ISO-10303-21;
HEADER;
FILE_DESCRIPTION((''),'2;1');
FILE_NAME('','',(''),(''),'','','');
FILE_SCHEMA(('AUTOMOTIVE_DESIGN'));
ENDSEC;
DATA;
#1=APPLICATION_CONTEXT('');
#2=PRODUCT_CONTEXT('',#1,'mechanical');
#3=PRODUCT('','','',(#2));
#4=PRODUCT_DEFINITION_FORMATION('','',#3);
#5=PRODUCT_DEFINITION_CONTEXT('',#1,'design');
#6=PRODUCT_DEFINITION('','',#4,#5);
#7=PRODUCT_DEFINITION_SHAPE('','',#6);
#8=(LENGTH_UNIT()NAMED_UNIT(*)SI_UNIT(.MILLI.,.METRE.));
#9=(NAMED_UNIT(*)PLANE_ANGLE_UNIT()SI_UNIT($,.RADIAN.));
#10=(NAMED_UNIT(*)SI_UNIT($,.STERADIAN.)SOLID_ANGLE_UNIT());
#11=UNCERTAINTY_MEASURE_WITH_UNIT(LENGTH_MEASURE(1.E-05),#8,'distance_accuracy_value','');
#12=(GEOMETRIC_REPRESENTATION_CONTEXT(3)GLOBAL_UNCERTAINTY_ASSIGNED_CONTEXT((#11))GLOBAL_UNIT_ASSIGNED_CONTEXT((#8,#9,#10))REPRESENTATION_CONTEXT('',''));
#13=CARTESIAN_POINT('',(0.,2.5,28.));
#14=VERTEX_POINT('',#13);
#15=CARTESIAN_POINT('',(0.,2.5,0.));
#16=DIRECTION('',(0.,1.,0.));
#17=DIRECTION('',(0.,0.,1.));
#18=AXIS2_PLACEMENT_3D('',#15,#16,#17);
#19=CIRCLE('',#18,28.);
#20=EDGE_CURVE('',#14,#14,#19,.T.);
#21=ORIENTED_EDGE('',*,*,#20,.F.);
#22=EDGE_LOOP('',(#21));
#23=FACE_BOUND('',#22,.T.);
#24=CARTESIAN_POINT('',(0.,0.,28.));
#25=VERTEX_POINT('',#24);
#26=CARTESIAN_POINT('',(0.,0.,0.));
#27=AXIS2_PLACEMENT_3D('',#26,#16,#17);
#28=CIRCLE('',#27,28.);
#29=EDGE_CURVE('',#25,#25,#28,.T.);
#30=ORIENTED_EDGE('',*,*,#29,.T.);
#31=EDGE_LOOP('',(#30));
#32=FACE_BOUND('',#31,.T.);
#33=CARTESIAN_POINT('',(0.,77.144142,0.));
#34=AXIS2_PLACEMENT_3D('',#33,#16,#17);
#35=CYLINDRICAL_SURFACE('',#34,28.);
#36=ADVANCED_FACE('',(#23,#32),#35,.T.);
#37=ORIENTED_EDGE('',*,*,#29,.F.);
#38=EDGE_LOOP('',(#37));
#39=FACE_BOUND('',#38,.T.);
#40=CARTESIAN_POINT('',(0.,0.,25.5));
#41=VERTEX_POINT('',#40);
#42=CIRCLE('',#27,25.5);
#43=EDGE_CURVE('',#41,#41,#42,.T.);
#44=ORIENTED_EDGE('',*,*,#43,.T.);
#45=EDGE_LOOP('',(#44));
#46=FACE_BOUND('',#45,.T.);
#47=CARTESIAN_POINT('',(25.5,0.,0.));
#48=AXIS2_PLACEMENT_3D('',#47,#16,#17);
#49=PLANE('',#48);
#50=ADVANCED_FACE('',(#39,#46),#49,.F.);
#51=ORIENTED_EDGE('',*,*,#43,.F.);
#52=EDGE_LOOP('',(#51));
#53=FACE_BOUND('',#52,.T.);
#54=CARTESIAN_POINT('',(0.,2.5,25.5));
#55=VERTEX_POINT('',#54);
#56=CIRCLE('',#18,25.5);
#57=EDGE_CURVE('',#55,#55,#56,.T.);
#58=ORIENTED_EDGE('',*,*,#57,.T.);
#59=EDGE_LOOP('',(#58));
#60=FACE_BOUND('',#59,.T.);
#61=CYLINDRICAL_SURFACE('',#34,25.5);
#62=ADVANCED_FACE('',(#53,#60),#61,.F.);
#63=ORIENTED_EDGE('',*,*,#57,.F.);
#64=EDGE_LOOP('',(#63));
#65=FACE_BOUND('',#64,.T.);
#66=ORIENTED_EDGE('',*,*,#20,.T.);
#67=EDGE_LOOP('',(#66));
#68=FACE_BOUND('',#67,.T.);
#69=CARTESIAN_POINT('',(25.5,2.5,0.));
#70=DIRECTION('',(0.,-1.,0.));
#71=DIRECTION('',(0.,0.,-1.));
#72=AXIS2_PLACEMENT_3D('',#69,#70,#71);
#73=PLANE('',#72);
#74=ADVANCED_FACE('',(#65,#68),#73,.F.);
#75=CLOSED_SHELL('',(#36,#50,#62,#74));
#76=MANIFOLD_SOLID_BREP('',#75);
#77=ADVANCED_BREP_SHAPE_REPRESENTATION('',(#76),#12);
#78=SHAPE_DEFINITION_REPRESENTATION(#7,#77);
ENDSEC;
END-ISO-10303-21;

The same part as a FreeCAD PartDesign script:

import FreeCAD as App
import Part
import Sketcher
Q = App.Units.Quantity


def add_polygon(sketch, points):
    """Adds a closed chain of lines whose ends are joined by coincident constraints."""
    first, n = sketch.GeometryCount, len(points)
    for a, b in zip(points, points[1:] + points[:1]):
        sketch.addGeometry(Part.LineSegment(App.Vector(*a, 0), App.Vector(*b, 0)), False)
    for i in range(n):
        sketch.addConstraint(Sketcher.Constraint("Coincident", first + i, 2, first + (i + 1) % n, 1))

doc = App.newDocument("Part")
body = doc.addObject("PartDesign::Body", "Body")

sketch1 = body.newObject("Sketcher::SketchObject", "Sketch")
sketch1.AttachmentSupport = (doc.getObject("XY_Plane"), [""])
sketch1.MapMode = "FlatFace"
add_polygon(sketch1, [(25.5, 2.5), (25.5, 0), (28, 0), (28, 2.5)])
sketch1.addConstraint([
    Sketcher.Constraint("Vertical", 0),
    Sketcher.Constraint("Horizontal", 1),
    Sketcher.Constraint("Vertical", 2),
    Sketcher.Constraint("Horizontal", 3),
    Sketcher.Constraint("PointOnObject", 0, 2, -1),
    Sketcher.Constraint("Equal", 3, 0),
    Sketcher.Constraint("DistanceX", 1, 1, 1, 2, Q("2.5 mm")),
    Sketcher.Constraint("DistanceX", -1, 1, 1, 2, Q("28 mm")),
])
revolution = body.newObject("PartDesign::Revolution", "Revolution")
revolution.Profile = sketch1
revolution.ReferenceAxis = (sketch1, ["V_Axis"])
revolution.Angle = 360

doc.recompute()
